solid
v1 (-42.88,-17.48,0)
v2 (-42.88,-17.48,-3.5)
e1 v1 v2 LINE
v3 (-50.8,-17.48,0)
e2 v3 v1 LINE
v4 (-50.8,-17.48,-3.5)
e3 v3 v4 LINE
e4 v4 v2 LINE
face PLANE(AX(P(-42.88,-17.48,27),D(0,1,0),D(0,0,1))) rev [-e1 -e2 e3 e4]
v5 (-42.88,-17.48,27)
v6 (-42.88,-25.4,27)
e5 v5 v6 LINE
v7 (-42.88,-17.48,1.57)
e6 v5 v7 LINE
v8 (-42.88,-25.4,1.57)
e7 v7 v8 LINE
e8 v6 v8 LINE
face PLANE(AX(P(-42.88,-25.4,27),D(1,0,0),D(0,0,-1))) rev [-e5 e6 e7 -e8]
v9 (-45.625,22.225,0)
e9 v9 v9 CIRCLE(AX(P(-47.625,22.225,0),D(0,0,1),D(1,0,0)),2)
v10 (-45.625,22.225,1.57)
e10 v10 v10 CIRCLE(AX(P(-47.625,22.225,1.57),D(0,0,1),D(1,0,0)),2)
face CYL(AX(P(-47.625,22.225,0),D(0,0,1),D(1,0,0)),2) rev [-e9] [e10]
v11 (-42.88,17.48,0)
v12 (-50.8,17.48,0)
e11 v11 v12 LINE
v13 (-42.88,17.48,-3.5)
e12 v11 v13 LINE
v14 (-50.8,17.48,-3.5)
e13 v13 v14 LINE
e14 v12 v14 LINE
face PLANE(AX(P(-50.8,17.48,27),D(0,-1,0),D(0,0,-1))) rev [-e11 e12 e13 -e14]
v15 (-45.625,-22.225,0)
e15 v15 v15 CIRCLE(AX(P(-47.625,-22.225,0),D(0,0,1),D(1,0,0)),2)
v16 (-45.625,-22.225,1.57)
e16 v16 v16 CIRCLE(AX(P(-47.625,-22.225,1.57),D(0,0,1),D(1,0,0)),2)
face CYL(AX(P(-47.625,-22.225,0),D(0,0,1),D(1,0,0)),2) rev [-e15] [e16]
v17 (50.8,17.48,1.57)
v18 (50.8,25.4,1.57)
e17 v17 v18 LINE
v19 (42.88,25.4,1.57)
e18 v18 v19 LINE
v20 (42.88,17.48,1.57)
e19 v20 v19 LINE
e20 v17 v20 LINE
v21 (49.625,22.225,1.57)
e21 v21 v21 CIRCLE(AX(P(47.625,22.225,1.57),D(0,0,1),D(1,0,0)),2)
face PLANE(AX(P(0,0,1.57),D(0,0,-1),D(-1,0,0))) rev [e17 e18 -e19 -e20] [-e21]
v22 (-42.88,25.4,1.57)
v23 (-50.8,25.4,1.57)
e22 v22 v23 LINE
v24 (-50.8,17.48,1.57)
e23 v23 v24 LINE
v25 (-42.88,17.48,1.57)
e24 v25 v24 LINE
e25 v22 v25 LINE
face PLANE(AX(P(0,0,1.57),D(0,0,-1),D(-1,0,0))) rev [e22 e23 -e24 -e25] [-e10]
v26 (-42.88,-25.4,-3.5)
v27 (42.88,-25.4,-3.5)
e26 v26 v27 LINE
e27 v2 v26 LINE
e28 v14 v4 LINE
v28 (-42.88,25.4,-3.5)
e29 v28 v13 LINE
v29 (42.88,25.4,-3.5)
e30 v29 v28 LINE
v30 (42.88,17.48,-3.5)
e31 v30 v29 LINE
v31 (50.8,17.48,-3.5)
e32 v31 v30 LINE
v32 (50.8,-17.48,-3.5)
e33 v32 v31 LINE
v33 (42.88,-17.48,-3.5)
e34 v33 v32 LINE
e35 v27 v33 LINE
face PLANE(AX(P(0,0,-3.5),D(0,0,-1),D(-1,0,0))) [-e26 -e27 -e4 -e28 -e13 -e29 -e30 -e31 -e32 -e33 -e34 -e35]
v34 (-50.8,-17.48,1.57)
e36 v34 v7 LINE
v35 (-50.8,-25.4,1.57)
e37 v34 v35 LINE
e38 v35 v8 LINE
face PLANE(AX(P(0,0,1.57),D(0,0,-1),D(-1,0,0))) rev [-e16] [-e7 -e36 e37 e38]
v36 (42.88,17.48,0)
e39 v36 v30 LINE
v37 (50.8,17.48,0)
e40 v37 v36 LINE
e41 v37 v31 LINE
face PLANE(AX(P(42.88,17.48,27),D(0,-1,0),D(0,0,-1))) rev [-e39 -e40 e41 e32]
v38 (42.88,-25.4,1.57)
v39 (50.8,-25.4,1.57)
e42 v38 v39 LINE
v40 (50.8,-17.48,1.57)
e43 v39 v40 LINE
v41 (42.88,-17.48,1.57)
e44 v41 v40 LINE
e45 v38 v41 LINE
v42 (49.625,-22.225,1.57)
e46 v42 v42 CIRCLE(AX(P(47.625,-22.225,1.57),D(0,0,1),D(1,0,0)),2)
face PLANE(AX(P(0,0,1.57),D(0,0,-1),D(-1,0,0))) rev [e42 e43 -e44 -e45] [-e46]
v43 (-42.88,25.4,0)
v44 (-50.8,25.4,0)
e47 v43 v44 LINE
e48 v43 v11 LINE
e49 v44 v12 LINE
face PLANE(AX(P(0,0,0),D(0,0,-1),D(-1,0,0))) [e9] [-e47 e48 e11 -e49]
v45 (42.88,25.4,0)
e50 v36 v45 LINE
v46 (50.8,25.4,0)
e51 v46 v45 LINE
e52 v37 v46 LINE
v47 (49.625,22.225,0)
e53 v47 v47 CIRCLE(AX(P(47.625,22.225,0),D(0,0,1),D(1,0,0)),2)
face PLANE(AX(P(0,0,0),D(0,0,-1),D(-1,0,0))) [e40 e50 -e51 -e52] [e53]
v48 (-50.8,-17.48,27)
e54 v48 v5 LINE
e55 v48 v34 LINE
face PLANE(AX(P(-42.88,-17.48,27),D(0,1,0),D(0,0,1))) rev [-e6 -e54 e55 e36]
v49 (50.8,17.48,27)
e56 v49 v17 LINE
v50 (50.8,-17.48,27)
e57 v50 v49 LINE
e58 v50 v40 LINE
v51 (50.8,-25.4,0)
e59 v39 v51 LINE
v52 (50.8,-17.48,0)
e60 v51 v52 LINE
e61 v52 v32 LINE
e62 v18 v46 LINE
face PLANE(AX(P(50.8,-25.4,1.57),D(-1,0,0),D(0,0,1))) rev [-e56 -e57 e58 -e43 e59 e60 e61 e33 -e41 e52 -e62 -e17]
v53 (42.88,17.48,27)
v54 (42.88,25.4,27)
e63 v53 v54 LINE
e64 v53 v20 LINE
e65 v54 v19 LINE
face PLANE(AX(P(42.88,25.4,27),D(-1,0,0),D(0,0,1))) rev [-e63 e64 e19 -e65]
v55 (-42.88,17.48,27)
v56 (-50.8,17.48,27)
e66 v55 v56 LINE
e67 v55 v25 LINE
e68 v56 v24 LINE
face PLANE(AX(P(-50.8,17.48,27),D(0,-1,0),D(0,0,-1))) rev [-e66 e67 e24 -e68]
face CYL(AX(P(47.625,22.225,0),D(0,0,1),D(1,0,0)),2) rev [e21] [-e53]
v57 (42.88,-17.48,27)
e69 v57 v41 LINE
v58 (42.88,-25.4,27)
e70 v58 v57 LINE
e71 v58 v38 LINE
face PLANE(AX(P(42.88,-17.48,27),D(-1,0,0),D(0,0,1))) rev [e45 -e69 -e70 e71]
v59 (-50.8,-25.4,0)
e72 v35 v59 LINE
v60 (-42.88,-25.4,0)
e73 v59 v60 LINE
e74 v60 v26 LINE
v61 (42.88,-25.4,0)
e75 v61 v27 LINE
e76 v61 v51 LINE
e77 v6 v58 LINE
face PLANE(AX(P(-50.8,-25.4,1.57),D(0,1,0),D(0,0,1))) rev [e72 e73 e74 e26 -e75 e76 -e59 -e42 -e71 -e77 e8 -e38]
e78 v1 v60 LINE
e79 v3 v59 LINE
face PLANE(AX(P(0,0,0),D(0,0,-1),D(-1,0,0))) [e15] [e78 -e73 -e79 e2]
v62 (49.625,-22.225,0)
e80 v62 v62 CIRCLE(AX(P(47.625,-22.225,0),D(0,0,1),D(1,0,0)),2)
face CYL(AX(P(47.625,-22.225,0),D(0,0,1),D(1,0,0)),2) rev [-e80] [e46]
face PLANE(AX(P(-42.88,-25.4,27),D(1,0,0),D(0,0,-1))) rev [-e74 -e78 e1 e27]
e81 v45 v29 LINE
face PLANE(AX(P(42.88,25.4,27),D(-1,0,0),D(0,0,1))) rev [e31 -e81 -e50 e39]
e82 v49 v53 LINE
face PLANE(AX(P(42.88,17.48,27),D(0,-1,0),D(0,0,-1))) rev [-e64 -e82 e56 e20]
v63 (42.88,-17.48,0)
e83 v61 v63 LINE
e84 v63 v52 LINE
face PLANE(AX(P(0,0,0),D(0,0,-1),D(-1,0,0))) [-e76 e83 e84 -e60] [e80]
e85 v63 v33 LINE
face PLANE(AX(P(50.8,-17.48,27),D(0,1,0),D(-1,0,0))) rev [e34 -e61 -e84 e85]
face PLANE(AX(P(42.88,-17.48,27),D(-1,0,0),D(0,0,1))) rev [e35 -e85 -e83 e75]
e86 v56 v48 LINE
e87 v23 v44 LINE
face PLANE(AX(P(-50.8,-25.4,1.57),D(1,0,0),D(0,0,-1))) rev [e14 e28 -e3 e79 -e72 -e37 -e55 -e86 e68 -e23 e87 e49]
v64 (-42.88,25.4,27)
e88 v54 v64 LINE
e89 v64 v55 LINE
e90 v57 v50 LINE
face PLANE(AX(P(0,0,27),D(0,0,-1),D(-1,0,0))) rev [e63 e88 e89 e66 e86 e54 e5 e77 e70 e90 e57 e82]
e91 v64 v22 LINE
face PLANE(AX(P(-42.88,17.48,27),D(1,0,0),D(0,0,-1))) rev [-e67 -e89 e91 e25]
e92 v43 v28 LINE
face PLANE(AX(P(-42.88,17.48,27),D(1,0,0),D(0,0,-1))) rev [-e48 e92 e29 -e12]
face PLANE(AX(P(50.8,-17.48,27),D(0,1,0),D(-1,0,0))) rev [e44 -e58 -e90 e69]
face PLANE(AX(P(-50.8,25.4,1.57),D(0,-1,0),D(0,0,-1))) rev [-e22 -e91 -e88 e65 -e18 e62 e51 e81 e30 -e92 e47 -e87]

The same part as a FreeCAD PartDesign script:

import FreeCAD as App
import Part
import Sketcher
from FreeCAD import Vector
Q = App.Units.Quantity


def add_polygon(sketch, points):
    """Adds a closed chain of lines whose ends are joined by coincident constraints."""
    first, n = sketch.GeometryCount, len(points)
    for a, b in zip(points, points[1:] + points[:1]):
        sketch.addGeometry(Part.LineSegment(App.Vector(*a, 0), App.Vector(*b, 0)), False)
    for i in range(n):
        sketch.addConstraint(Sketcher.Constraint("Coincident", first + i, 2, first + (i + 1) % n, 1))

doc = App.newDocument("Part")
body = doc.addObject("PartDesign::Body", "Body")

# Sketch on XY plane
sketch1 = body.newObject("Sketcher::SketchObject", "Sketch")
sketch1.AttachmentSupport = (doc.getObject("XY_Plane"), [""])
sketch1.MapMode = "FlatFace"
add_polygon(sketch1, [(-51, 25), (-51, -25), (51, -25), (51, 25)])  # lines 0-3
sketch1.addConstraint([
    Sketcher.Constraint("Vertical", 0),
    Sketcher.Constraint("Horizontal", 1),
    Sketcher.Constraint("Vertical", 2),
    Sketcher.Constraint("Horizontal", 3),
    Sketcher.Constraint("Symmetric", 0, 2, 2, 2, -1, 1),
    Sketcher.Constraint("DistanceX", 1, 1, 1, 2, Q("4 in")),
    Sketcher.Constraint("DistanceY", 0, 2, 0, 1, Q("2 in")),
])
pad1 = body.newObject("PartDesign::Pad", "Pad")
pad1.Profile = sketch1
pad1.Length = 1.57

# Sketch on XY plane
sketch2 = body.newObject("Sketcher::SketchObject", "Sketch001")
sketch2.AttachmentSupport = (doc.getObject("XY_Plane"), [""])
sketch2.MapMode = "FlatFace"
sketch2.AttachmentOffset = App.Placement(Vector(0, 0, 1.57), App.Rotation())
sketch2.addGeometry([
    Part.Circle(Vector(-47.6, 22.2, 0), Vector(0, 0, 1), 2),
    Part.Circle(Vector(47.6, 22.2, 0), Vector(0, 0, 1), 2),
    Part.Circle(Vector(47.6, -22.2, 0), Vector(0, 0, 1), 2),
    Part.Circle(Vector(-47.6, -22.2, 0), Vector(0, 0, 1), 2),
], False)
sketch2.addConstraint([
    Sketcher.Constraint("Equal", 0, 1),
    Sketcher.Constraint("Equal", 1, 2),
    Sketcher.Constraint("Equal", 2, 3),
    Sketcher.Constraint("Symmetric", 0, 3, 2, 3, -1, 1),
    Sketcher.Constraint("Symmetric", 1, 3, 3, 3, -1, 1),
    Sketcher.Constraint("Symmetric", 0, 3, 1, 3, -2),
    Sketcher.Constraint("Diameter", 0, Q("4 mm")),
    Sketcher.Constraint("DistanceX", 0, 3, 1, 3, Q("3.75 in")),
    Sketcher.Constraint("DistanceY", 2, 3, 1, 3, Q("1.75 in")),
])
pocket1 = body.newObject("PartDesign::Pocket", "Pocket")
pocket1.Profile = sketch2
pocket1.Type = "ThroughAll"

# Sketch on XY plane
sketch3 = body.newObject("Sketcher::SketchObject", "Sketch002")
sketch3.AttachmentSupport = (doc.getObject("XY_Plane"), [""])
sketch3.MapMode = "FlatFace"
sketch3.AttachmentOffset = App.Placement(Vector(0, 0, 1.57), App.Rotation())
add_polygon(sketch3, [(-43, 17), (-51, 17), (-51, -17), (-43, -17), (-43, -25), (43, -25), (43, -17), (51, -17), (51, 17), (43, 17), (43, 25), (-43, 25)])  # lines 0-11
sketch3.addConstraint([
    Sketcher.Constraint("Horizontal", 0),
    Sketcher.Constraint("Vertical", 1),
    Sketcher.Constraint("Horizontal", 2),
    Sketcher.Constraint("Vertical", 3),
    Sketcher.Constraint("Horizontal", 4),
    Sketcher.Constraint("Vertical", 5),
    Sketcher.Constraint("Horizontal", 6),
    Sketcher.Constraint("Vertical", 7),
    Sketcher.Constraint("Horizontal", 8),
    Sketcher.Constraint("Vertical", 9),
    Sketcher.Constraint("Horizontal", 10),
    Sketcher.Constraint("Vertical", 11),
    Sketcher.Constraint("Symmetric", 0, 2, 6, 2, -1, 1),
    Sketcher.Constraint("Symmetric", 2, 2, 8, 2, -1, 1),
    Sketcher.Constraint("Symmetric", 4, 2, 10, 2, -1, 1),
    Sketcher.Constraint("Symmetric", 2, 2, 5, 2, -2),
    Sketcher.Constraint("Equal", 8, 3),
    Sketcher.Constraint("DistanceX", 0, 2, -1, 1, Q("2 in")),
    Sketcher.Constraint("DistanceY", 3, 2, -1, 1, Q("1 in")),
    Sketcher.Constraint("DistanceX", 0, 2, 0, 1, Q("7.92 mm")),
])
pad2 = body.newObject("PartDesign::Pad", "Pad001")
pad2.Profile = sketch3
pad2.Type = "TwoLengths"
pad2.Length = 25.43
pad2.Length2 = 5.07

doc.recompute()
